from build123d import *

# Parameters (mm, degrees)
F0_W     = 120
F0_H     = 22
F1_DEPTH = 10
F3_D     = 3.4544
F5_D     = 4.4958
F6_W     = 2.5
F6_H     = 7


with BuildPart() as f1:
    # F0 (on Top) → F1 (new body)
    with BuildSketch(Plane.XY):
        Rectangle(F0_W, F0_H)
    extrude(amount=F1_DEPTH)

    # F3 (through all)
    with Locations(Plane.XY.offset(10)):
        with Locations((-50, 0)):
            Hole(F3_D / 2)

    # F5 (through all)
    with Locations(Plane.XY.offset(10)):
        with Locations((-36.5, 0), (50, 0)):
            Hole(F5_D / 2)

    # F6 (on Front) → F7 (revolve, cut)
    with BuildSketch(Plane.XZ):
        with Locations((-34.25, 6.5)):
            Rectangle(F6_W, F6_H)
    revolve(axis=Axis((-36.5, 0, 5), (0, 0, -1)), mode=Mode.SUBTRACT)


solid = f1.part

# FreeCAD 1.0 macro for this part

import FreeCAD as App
import Part
import Sketcher
from FreeCAD import Vector
Q = App.Units.Quantity

doc = App.newDocument("Part")
body = doc.addObject("PartDesign::Body", "Body")

# Sketch on XY plane
sketch1 = doc.addObject("Sketcher::SketchObject", "Sketch")
body.addObject(sketch1)
sketch1.AttachmentSupport = (doc.XY_Plane, [""])
sketch1.MapMode = "FlatFace"
sketch1.addGeometry(Part.LineSegment(Vector(-60, 11, 0), Vector(-60, -11, 0)), False)
sketch1.addGeometry(Part.LineSegment(Vector(-60, -11, 0), Vector(60, -11, 0)), False)
sketch1.addGeometry(Part.LineSegment(Vector(60, -11, 0), Vector(60, 11, 0)), False)
sketch1.addGeometry(Part.LineSegment(Vector(60, 11, 0), Vector(-60, 11, 0)), False)
sketch1.addConstraint(Sketcher.Constraint("Coincident", 0, 2, 1, 1))
sketch1.addConstraint(Sketcher.Constraint("Coincident", 1, 2, 2, 1))
sketch1.addConstraint(Sketcher.Constraint("Coincident", 2, 2, 3, 1))
sketch1.addConstraint(Sketcher.Constraint("Coincident", 3, 2, 0, 1))
sketch1.addConstraint(Sketcher.Constraint("Vertical", 0))
sketch1.addConstraint(Sketcher.Constraint("Horizontal", 1))
sketch1.addConstraint(Sketcher.Constraint("Vertical", 2))
sketch1.addConstraint(Sketcher.Constraint("Horizontal", 3))
sketch1.addConstraint(Sketcher.Constraint("Symmetric", 0, 2, 2, 2, -1, 1))
sketch1.addConstraint(Sketcher.Constraint("DistanceX", 1, 1, 1, 2, Q("120 mm")))
sketch1.addConstraint(Sketcher.Constraint("DistanceY", 0, 2, 0, 1, Q("22 mm")))
pad1 = doc.addObject("PartDesign::Pad", "Pad")
body.addObject(pad1)
pad1.Profile = sketch1
pad1.Length = 10

# Sketch on XY plane
sketch2 = doc.addObject("Sketcher::SketchObject", "Sketch001")
body.addObject(sketch2)
sketch2.AttachmentSupport = (doc.XY_Plane, [""])
sketch2.MapMode = "FlatFace"
sketch2.AttachmentOffset = App.Placement(Vector(0, 0, 10), App.Rotation())
sketch2.addGeometry(Part.Circle(Vector(-50, 0, 0), Vector(0, 0, 1), 1.7), False)
sketch2.addConstraint(Sketcher.Constraint("PointOnObject", 0, 3, -1))
sketch2.addConstraint(Sketcher.Constraint("DistanceX", 0, 3, -1, 1, Q("50 mm")))
sketch2.addConstraint(Sketcher.Constraint("Diameter", 0, Q("3.4544 mm")))
doc.recompute()
hole = doc.addObject("PartDesign::Hole", "Hole")
body.addObject(hole)
hole.Profile = sketch2
hole.ThreadType = "None"
hole.Diameter = 3.4544
hole.DepthType = "ThroughAll"

# Sketch on XY plane
sketch3 = doc.addObject("Sketcher::SketchObject", "Sketch002")
body.addObject(sketch3)
sketch3.AttachmentSupport = (doc.XY_Plane, [""])
sketch3.MapMode = "FlatFace"
sketch3.AttachmentOffset = App.Placement(Vector(0, 0, 10), App.Rotation())
sketch3.addGeometry(Part.Circle(Vector(-36.5, 0, 0), Vector(0, 0, 1), 2.2), False)
sketch3.addGeometry(Part.Circle(Vector(50, 0, 0), Vector(0, 0, 1), 2.2), False)
sketch3.addConstraint(Sketcher.Constraint("Equal", 0, 1))
sketch3.addConstraint(Sketcher.Constraint("PointOnObject", 0, 3, -1))
sketch3.addConstraint(Sketcher.Constraint("PointOnObject", 1, 3, -1))
sketch3.addConstraint(Sketcher.Constraint("DistanceX", -1, 1, 1, 3, Q("50 mm")))
sketch3.addConstraint(Sketcher.Constraint("Diameter", 0, Q("4.4958 mm")))
sketch3.addConstraint(Sketcher.Constraint("DistanceX", 0, 3, -1, 1, Q("36.5 mm")))
doc.recompute()
hole2 = doc.addObject("PartDesign::Hole", "Hole001")
body.addObject(hole2)
hole2.Profile = sketch3
hole2.ThreadType = "None"
hole2.Diameter = 4.4958
hole2.DepthType = "ThroughAll"

# Sketch on XZ plane
sketch4 = doc.addObject("Sketcher::SketchObject", "Sketch003")
body.addObject(sketch4)
sketch4.AttachmentSupport = (doc.XZ_Plane, [""])
sketch4.MapMode = "FlatFace"
sketch4.addGeometry(Part.LineSegment(Vector(-35.5, 10, 0), Vector(-35.5, 3, 0)), False)
sketch4.addGeometry(Part.LineSegment(Vector(-35.5, 3, 0), Vector(-33, 3, 0)), False)
sketch4.addGeometry(Part.LineSegment(Vector(-33, 3, 0), Vector(-33, 10, 0)), False)
sketch4.addGeometry(Part.LineSegment(Vector(-33, 10, 0), Vector(-35.5, 10, 0)), False)
sketch4.addGeometry(Part.LineSegment(Vector(-36.5, 10, 0), Vector(-36.5, 3, 0)), True)  # axis
sketch4.addConstraint(Sketcher.Constraint("Coincident", 0, 2, 1, 1))
sketch4.addConstraint(Sketcher.Constraint("Coincident", 1, 2, 2, 1))
sketch4.addConstraint(Sketcher.Constraint("Coincident", 2, 2, 3, 1))
sketch4.addConstraint(Sketcher.Constraint("Coincident", 3, 2, 0, 1))
sketch4.addConstraint(Sketcher.Constraint("Vertical", 0))
sketch4.addConstraint(Sketcher.Constraint("Horizontal", 1))
sketch4.addConstraint(Sketcher.Constraint("Vertical", 2))
sketch4.addConstraint(Sketcher.Constraint("Horizontal", 3))
sketch4.addConstraint(Sketcher.Constraint("Vertical", 4))
sketch4.addConstraint(Sketcher.Constraint("Horizontal", 3, 2, 4, 1))
sketch4.addConstraint(Sketcher.Constraint("Horizontal", 1, 2, 4, 2))
sketch4.addConstraint(Sketcher.Constraint("DistanceY", 0, 2, 0, 1, Q("7 mm")))
sketch4.addConstraint(Sketcher.Constraint("DistanceX", 1, 1, 1, 2, Q("2.5 mm")))
sketch4.addConstraint(Sketcher.Constraint("DistanceY", -1, 1, 0, 2, Q("3 mm")))
sketch4.addConstraint(Sketcher.Constraint("DistanceX", 1, 2, -1, 1, Q("33 mm")))
sketch4.addConstraint(Sketcher.Constraint("DistanceX", 4, 1, 3, 2, Q("1 mm")))
groove = doc.addObject("PartDesign::Groove", "Groove")
body.addObject(groove)
groove.Profile = sketch4
groove.ReferenceAxis = (sketch4, ["Axis0"])
groove.Angle = 360

doc.recompute()
